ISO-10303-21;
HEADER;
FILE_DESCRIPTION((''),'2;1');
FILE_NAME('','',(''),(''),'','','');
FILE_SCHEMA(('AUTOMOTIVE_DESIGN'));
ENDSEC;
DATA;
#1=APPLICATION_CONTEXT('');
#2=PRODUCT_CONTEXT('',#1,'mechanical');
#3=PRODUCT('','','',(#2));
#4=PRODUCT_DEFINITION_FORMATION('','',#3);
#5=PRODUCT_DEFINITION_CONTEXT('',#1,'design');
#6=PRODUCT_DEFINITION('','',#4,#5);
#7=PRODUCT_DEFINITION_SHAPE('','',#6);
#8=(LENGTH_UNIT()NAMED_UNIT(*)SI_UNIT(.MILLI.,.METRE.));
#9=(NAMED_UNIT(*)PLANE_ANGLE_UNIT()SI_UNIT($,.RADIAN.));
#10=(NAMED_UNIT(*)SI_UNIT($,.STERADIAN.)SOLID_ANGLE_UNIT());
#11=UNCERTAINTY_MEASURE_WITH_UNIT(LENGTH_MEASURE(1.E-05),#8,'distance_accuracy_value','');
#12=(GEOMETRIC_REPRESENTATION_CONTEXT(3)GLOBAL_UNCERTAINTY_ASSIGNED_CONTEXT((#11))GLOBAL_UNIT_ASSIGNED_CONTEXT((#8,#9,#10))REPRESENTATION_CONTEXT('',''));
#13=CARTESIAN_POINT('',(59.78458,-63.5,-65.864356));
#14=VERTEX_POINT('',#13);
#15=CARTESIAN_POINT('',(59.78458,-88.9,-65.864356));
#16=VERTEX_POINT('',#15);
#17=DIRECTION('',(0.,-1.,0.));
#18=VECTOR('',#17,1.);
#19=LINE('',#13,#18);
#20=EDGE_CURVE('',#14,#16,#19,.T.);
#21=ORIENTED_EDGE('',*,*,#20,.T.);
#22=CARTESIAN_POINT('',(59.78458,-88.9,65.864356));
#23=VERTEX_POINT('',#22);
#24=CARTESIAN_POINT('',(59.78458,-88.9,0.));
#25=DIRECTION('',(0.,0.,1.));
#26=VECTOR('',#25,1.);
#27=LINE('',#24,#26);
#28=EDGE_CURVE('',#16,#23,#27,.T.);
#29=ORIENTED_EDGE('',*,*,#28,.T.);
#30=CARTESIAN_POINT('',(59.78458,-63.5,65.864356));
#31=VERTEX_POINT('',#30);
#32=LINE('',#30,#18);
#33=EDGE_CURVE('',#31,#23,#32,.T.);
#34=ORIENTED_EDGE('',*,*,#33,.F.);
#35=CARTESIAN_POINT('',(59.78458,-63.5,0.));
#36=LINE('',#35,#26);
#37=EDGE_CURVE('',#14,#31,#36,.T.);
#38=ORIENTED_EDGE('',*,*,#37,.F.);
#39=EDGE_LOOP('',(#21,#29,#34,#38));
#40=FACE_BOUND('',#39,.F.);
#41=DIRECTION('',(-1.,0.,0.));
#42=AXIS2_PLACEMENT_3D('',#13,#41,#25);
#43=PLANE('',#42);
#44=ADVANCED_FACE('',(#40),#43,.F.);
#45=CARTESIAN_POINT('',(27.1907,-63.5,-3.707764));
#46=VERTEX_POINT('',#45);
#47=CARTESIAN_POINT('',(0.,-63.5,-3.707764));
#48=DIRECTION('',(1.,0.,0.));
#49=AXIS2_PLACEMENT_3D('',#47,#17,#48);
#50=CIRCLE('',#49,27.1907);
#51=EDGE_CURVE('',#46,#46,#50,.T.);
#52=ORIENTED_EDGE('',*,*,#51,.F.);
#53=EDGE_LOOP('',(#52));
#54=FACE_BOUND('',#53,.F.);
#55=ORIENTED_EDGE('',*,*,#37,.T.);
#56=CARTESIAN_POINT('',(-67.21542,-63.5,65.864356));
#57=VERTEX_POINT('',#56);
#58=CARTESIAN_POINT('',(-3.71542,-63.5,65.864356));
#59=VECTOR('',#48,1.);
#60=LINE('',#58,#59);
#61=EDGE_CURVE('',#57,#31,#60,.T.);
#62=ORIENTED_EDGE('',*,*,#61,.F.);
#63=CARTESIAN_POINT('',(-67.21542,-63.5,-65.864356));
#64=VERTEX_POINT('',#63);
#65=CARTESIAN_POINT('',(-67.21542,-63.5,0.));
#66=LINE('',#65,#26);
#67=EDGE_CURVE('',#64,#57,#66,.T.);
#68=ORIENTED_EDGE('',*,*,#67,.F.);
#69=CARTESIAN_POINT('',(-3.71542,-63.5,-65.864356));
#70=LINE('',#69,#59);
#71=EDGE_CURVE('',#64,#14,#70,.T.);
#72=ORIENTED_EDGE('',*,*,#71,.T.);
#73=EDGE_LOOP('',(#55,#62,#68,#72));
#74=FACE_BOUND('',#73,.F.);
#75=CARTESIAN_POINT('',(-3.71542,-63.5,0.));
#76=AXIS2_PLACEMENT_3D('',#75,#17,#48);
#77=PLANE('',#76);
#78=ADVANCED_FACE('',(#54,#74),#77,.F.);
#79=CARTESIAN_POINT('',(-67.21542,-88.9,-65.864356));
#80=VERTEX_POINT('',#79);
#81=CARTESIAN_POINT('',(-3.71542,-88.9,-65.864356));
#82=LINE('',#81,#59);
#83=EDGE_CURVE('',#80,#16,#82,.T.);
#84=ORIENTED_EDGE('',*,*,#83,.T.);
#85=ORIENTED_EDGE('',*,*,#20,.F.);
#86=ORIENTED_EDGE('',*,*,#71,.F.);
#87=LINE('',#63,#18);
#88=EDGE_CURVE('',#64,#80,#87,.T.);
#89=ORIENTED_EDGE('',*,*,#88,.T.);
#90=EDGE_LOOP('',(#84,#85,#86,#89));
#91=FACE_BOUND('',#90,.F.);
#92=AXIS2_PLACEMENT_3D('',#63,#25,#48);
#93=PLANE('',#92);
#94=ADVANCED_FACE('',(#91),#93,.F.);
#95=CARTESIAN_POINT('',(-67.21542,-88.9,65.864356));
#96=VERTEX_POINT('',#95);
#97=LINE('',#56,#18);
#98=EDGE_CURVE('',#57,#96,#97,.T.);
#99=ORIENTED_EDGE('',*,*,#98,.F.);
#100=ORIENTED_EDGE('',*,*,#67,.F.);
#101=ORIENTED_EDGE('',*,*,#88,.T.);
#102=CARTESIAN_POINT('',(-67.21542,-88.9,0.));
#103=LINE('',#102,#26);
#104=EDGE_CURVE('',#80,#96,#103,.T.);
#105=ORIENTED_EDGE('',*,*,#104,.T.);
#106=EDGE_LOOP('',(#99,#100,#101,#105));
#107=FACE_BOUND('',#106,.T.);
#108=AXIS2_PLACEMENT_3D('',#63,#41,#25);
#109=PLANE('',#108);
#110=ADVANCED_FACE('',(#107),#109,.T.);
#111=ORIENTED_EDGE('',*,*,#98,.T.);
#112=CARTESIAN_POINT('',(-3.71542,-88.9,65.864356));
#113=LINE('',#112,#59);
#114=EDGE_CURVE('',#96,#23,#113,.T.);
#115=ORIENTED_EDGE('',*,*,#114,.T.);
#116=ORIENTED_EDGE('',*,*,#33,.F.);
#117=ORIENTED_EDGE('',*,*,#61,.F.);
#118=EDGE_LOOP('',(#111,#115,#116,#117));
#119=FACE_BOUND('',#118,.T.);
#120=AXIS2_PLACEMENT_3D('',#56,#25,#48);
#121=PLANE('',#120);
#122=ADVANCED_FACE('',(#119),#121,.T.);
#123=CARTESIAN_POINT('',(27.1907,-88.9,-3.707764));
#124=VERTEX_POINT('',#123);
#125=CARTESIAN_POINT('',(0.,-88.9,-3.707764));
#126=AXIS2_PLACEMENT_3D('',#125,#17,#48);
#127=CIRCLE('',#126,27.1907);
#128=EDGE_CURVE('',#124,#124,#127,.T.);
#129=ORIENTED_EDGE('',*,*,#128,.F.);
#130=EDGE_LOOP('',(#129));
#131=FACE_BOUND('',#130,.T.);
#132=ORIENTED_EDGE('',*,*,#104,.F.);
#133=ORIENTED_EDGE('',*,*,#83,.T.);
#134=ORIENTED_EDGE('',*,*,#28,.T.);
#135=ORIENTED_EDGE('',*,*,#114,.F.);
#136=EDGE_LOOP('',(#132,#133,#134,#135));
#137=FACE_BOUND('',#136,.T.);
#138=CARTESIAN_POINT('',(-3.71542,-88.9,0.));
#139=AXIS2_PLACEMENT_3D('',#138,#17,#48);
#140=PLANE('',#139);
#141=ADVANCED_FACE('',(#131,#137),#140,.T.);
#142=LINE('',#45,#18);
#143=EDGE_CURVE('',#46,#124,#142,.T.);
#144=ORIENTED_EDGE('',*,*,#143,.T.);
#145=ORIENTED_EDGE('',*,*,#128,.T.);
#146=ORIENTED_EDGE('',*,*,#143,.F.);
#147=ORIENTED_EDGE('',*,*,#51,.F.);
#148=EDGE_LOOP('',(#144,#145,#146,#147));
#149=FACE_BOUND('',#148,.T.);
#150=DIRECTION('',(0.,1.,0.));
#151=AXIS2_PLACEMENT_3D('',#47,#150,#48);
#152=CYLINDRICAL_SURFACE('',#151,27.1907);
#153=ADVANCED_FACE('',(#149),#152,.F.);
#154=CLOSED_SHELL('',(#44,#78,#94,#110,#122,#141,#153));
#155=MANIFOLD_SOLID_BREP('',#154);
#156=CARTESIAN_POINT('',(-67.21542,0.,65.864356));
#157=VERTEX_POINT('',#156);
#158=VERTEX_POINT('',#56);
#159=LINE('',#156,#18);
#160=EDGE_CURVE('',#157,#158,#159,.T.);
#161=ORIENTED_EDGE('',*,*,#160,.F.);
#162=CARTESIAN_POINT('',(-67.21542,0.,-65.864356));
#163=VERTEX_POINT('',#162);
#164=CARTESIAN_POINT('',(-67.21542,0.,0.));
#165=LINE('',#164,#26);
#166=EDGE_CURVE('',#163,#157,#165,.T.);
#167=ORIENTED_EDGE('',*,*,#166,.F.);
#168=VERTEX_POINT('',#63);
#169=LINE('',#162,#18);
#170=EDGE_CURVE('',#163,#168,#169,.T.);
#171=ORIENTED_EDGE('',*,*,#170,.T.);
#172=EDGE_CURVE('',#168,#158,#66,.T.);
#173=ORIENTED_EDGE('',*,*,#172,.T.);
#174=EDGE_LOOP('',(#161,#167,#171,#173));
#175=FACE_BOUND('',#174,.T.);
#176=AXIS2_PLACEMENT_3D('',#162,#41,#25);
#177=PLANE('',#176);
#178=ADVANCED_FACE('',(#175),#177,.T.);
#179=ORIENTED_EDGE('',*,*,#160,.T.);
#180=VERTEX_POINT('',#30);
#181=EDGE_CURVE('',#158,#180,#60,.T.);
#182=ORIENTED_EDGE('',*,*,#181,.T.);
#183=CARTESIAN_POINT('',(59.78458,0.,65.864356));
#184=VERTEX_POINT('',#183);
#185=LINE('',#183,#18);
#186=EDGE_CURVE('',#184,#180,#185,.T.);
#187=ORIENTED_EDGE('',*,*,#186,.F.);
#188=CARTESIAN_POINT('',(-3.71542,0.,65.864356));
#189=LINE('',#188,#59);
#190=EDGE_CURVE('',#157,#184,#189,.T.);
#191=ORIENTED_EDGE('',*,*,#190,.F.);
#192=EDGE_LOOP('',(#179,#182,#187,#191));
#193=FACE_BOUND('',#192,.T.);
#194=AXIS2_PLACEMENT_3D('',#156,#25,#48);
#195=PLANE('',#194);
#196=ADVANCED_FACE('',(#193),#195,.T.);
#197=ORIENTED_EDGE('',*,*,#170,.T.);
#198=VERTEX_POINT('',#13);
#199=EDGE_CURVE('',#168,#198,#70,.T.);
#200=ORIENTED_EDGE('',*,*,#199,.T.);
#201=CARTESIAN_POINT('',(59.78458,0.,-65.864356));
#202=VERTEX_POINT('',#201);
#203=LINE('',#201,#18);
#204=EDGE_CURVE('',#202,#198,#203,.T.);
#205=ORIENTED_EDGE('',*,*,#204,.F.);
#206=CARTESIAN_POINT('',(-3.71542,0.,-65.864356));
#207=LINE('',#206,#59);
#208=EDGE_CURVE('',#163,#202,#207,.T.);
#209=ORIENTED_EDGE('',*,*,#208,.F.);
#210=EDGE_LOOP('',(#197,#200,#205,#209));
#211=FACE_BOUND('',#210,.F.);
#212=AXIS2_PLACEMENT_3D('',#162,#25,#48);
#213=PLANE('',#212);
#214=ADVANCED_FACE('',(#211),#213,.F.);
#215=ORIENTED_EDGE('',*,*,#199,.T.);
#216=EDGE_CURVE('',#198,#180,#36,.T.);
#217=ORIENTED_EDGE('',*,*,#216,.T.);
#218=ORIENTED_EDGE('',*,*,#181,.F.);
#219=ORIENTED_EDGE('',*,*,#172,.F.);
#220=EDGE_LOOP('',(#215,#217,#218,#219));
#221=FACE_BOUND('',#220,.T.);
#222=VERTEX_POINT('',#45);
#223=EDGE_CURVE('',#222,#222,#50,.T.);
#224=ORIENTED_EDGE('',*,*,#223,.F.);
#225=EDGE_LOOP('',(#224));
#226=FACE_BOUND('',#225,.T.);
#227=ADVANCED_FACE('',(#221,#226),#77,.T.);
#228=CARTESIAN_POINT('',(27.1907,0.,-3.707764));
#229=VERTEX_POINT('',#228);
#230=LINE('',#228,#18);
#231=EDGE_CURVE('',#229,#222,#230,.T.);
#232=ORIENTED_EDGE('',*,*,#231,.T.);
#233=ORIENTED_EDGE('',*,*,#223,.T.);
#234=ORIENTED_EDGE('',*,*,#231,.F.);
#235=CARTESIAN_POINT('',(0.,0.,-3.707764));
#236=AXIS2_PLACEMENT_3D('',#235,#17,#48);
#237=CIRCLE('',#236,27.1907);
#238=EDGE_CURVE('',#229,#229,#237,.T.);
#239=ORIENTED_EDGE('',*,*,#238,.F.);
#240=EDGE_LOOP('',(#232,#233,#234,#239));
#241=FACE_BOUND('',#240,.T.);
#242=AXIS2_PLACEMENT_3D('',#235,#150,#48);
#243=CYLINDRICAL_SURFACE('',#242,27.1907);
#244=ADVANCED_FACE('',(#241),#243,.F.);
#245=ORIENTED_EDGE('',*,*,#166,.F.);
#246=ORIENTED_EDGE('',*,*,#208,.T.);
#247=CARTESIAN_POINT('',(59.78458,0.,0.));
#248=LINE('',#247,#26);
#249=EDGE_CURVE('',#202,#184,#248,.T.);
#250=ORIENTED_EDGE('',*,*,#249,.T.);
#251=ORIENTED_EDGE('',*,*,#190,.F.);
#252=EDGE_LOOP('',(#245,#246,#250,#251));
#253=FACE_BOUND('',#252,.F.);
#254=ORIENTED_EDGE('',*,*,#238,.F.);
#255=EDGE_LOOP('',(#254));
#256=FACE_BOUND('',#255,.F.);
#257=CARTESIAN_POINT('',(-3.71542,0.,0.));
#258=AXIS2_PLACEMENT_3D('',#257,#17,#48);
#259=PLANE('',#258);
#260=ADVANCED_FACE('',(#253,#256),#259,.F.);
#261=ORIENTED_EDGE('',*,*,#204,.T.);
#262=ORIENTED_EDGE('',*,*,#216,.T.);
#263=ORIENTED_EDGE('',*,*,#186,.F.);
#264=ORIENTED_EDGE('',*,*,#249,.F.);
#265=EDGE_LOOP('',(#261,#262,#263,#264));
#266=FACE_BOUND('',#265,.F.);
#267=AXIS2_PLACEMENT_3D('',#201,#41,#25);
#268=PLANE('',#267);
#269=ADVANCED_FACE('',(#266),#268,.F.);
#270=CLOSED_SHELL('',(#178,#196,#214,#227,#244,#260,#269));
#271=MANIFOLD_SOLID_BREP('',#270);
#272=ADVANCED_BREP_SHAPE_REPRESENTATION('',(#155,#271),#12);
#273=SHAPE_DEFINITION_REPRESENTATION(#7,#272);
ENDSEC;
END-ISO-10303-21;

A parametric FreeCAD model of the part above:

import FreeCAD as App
import Part
import Sketcher
from FreeCAD import Vector
Q = App.Units.Quantity


def add_polygon(sketch, points):
    """Adds a closed chain of lines whose ends are joined by coincident constraints."""
    first, n = sketch.GeometryCount, len(points)
    for a, b in zip(points, points[1:] + points[:1]):
        sketch.addGeometry(Part.LineSegment(App.Vector(*a, 0), App.Vector(*b, 0)), False)
    for i in range(n):
        sketch.addConstraint(Sketcher.Constraint("Coincident", first + i, 2, first + (i + 1) % n, 1))

doc = App.newDocument("Part")
params = doc.addObject("Spreadsheet::Sheet", "Params")
for row, (alias, value) in enumerate([
    ("sketch1_width", "5 in"),
    ("sketch1_diameter", "2.141 in"),
    ("pad1_length", "2.5 in"),
    ("sketch2_width", "5 in"),
    ("sketch2_diameter", "2.141 in"),
    ("pad2_length", "1 in"),
], start=1):
    params.set(f"A{row}", alias)
    params.set(f"B{row}", "=" + value)
    params.setAlias(f"B{row}", alias)

body = doc.addObject("PartDesign::Body", "Body")

sketch1 = body.newObject("Sketcher::SketchObject", "Sketch")
sketch1.AttachmentSupport = (doc.getObject("XZ_Plane"), [""])
sketch1.MapMode = "FlatFace"
add_polygon(sketch1, [(-67, 66), (-67, -66), (60, -66), (60, 66)])
sketch1.addGeometry(Part.Circle(Vector(0, -4, 0), Vector(0, 0, 1), 27), False)
sketch1.addConstraint(Sketcher.Constraint("Vertical", 0))
sketch1.addConstraint(Sketcher.Constraint("Horizontal", 1))
sketch1.addConstraint(Sketcher.Constraint("Vertical", 2))
sketch1.addConstraint(Sketcher.Constraint("Horizontal", 3))
sketch1.addConstraint(Sketcher.Constraint("PointOnObject", 4, 3, -2))
sketch1.addConstraint(Sketcher.Constraint("DistanceX", 1, 1, 1, 2, Q("5 in")))
sketch1.addConstraint(Sketcher.Constraint("Diameter", 4, Q("2.141 in")))
sketch1.addConstraint(Sketcher.Constraint("DistanceY", 0, 2, 0, 1, Q("131.728712 mm")))
sketch1.addConstraint(Sketcher.Constraint("DistanceX", 0, 2, -1, 1, Q("67.21542 mm")))
sketch1.addConstraint(Sketcher.Constraint("DistanceY", 4, 3, 2, 2, Q("69.57212 mm")))
sketch1.addConstraint(Sketcher.Constraint("DistanceY", 4, 3, -1, 1, Q("3.707764 mm")))
sketch1.setExpression("Constraints[9]", "Params.sketch1_width")
sketch1.setExpression("Constraints[10]", "Params.sketch1_diameter")
pad1 = body.newObject("PartDesign::Pad", "Pad")
pad1.Profile = sketch1
pad1.setExpression("Length", "Params.pad1_length")
body2 = doc.addObject("PartDesign::Body", "Body001")

sketch2 = body2.newObject("Sketcher::SketchObject", "Sketch001")
sketch2.AttachmentSupport = (doc.getObject("XZ_Plane001"), [""])
sketch2.MapMode = "FlatFace"
sketch2.AttachmentOffset = App.Placement(Vector(0, 0, 2.5 * 25.4), App.Rotation())
add_polygon(sketch2, [(-67, 66), (-67, -66), (60, -66), (60, 66)])
sketch2.addGeometry(Part.Circle(Vector(0, -4, 0), Vector(0, 0, 1), 27), False)
sketch2.addConstraint(Sketcher.Constraint("Vertical", 0))
sketch2.addConstraint(Sketcher.Constraint("Horizontal", 1))
sketch2.addConstraint(Sketcher.Constraint("Vertical", 2))
sketch2.addConstraint(Sketcher.Constraint("Horizontal", 3))
sketch2.addConstraint(Sketcher.Constraint("PointOnObject", 4, 3, -2))
sketch2.addConstraint(Sketcher.Constraint("DistanceX", 1, 1, 1, 2, Q("5 in")))
sketch2.addConstraint(Sketcher.Constraint("Diameter", 4, Q("2.141 in")))
sketch2.addConstraint(Sketcher.Constraint("DistanceY", 0, 2, 0, 1, Q("131.728712 mm")))
sketch2.addConstraint(Sketcher.Constraint("DistanceX", 0, 2, -1, 1, Q("67.21542 mm")))
sketch2.addConstraint(Sketcher.Constraint("DistanceY", 4, 3, 2, 2, Q("69.57212 mm")))
sketch2.addConstraint(Sketcher.Constraint("DistanceY", 4, 3, -1, 1, Q("3.707764 mm")))
sketch2.setExpression("Constraints[9]", "Params.sketch2_width")
sketch2.setExpression("Constraints[10]", "Params.sketch2_diameter")
pad2 = body2.newObject("PartDesign::Pad", "Pad001")
pad2.Profile = sketch2
pad2.setExpression("Length", "Params.pad2_length")

doc.recompute()
